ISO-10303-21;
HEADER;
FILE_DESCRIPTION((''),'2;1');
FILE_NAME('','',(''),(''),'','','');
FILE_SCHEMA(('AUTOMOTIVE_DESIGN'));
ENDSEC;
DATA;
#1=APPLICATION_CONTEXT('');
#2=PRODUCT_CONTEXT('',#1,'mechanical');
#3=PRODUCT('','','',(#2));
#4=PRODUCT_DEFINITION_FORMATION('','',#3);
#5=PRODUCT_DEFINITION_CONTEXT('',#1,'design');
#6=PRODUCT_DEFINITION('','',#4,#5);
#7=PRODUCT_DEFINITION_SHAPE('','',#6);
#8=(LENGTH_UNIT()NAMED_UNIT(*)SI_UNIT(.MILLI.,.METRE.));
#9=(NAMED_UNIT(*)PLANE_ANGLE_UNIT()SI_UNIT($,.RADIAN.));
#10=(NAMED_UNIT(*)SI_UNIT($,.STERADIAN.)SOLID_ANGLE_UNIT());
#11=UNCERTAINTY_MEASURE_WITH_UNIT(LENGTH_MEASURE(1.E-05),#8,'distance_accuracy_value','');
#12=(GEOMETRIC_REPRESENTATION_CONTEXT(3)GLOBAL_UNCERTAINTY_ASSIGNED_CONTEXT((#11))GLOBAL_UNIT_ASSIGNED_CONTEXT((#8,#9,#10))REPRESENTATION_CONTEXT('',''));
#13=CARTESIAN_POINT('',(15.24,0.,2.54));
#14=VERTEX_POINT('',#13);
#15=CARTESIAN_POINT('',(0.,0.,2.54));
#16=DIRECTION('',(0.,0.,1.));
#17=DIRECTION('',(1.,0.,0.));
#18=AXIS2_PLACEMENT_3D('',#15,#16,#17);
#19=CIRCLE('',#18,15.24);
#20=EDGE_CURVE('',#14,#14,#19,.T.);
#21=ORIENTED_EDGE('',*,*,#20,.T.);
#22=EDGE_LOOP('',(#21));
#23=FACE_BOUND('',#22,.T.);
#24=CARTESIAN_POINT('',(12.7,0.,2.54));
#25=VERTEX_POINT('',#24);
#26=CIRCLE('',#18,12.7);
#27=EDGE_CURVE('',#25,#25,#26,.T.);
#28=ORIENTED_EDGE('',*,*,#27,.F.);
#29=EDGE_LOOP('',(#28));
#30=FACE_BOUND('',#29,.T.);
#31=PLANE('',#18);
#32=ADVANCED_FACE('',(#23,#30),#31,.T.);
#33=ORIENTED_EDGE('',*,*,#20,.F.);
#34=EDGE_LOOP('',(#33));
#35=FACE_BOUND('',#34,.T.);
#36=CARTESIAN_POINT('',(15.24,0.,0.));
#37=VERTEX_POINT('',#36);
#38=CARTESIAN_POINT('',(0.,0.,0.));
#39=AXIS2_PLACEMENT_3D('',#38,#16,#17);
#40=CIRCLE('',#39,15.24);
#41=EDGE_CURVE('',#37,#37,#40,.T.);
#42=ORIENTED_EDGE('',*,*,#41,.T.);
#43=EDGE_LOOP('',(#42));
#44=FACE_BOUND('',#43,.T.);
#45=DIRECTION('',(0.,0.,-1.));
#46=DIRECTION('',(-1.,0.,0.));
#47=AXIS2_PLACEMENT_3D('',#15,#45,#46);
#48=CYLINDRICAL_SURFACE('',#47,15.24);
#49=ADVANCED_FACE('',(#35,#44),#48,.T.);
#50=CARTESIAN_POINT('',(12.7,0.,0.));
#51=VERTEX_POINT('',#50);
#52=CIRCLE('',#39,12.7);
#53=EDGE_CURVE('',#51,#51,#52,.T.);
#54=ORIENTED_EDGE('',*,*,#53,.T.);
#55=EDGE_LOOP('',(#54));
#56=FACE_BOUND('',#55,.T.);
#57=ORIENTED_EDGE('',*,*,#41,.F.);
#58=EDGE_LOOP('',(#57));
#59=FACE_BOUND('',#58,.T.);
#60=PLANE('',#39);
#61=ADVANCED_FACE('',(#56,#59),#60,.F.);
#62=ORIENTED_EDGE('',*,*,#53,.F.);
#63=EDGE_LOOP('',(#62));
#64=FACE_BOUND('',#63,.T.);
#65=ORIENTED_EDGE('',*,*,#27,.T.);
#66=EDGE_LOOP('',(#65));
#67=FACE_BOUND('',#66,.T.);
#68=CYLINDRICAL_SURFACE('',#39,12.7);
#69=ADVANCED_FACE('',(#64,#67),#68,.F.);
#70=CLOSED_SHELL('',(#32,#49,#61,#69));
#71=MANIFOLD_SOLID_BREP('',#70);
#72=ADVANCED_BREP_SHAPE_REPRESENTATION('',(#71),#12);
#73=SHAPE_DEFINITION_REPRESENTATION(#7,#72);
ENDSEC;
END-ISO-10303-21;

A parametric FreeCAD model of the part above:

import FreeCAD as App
import Part
import Sketcher
from FreeCAD import Vector
Q = App.Units.Quantity

doc = App.newDocument("Part")
body = doc.addObject("PartDesign::Body", "Body")

# Sketch on XY plane
sketch1 = body.newObject("Sketcher::SketchObject", "Sketch")
sketch1.AttachmentSupport = (doc.getObject("XY_Plane"), [""])
sketch1.MapMode = "FlatFace"
sketch1.addGeometry(Part.Circle(Vector(0, 0, 0), Vector(0, 0, 1), 15), False)
sketch1.addConstraint([
    Sketcher.Constraint("Coincident", 0, 3, -1, 1),
    Sketcher.Constraint("Diameter", 0, Q("1.2 in")),
])
pad1 = body.newObject("PartDesign::Pad", "Pad")
pad1.Profile = sketch1
pad1.Length = Q("0.1 in")

# Sketch on XY plane
sketch2 = body.newObject("Sketcher::SketchObject", "Sketch001")
sketch2.AttachmentSupport = (doc.getObject("XY_Plane"), [""])
sketch2.MapMode = "FlatFace"
sketch2.AttachmentOffset = App.Placement(Vector(0, 0, 0.1 * 25.4), App.Rotation())
sketch2.addGeometry(Part.Circle(Vector(0, 0, 0), Vector(0, 0, 1), 13), False)
sketch2.addConstraint([
    Sketcher.Constraint("Coincident", 0, 3, -1, 1),
    Sketcher.Constraint("Diameter", 0, Q("1 in")),
])
pocket1 = body.newObject("PartDesign::Pocket", "Pocket")
pocket1.Profile = sketch2
pocket1.Type = "ThroughAll"

doc.recompute()
